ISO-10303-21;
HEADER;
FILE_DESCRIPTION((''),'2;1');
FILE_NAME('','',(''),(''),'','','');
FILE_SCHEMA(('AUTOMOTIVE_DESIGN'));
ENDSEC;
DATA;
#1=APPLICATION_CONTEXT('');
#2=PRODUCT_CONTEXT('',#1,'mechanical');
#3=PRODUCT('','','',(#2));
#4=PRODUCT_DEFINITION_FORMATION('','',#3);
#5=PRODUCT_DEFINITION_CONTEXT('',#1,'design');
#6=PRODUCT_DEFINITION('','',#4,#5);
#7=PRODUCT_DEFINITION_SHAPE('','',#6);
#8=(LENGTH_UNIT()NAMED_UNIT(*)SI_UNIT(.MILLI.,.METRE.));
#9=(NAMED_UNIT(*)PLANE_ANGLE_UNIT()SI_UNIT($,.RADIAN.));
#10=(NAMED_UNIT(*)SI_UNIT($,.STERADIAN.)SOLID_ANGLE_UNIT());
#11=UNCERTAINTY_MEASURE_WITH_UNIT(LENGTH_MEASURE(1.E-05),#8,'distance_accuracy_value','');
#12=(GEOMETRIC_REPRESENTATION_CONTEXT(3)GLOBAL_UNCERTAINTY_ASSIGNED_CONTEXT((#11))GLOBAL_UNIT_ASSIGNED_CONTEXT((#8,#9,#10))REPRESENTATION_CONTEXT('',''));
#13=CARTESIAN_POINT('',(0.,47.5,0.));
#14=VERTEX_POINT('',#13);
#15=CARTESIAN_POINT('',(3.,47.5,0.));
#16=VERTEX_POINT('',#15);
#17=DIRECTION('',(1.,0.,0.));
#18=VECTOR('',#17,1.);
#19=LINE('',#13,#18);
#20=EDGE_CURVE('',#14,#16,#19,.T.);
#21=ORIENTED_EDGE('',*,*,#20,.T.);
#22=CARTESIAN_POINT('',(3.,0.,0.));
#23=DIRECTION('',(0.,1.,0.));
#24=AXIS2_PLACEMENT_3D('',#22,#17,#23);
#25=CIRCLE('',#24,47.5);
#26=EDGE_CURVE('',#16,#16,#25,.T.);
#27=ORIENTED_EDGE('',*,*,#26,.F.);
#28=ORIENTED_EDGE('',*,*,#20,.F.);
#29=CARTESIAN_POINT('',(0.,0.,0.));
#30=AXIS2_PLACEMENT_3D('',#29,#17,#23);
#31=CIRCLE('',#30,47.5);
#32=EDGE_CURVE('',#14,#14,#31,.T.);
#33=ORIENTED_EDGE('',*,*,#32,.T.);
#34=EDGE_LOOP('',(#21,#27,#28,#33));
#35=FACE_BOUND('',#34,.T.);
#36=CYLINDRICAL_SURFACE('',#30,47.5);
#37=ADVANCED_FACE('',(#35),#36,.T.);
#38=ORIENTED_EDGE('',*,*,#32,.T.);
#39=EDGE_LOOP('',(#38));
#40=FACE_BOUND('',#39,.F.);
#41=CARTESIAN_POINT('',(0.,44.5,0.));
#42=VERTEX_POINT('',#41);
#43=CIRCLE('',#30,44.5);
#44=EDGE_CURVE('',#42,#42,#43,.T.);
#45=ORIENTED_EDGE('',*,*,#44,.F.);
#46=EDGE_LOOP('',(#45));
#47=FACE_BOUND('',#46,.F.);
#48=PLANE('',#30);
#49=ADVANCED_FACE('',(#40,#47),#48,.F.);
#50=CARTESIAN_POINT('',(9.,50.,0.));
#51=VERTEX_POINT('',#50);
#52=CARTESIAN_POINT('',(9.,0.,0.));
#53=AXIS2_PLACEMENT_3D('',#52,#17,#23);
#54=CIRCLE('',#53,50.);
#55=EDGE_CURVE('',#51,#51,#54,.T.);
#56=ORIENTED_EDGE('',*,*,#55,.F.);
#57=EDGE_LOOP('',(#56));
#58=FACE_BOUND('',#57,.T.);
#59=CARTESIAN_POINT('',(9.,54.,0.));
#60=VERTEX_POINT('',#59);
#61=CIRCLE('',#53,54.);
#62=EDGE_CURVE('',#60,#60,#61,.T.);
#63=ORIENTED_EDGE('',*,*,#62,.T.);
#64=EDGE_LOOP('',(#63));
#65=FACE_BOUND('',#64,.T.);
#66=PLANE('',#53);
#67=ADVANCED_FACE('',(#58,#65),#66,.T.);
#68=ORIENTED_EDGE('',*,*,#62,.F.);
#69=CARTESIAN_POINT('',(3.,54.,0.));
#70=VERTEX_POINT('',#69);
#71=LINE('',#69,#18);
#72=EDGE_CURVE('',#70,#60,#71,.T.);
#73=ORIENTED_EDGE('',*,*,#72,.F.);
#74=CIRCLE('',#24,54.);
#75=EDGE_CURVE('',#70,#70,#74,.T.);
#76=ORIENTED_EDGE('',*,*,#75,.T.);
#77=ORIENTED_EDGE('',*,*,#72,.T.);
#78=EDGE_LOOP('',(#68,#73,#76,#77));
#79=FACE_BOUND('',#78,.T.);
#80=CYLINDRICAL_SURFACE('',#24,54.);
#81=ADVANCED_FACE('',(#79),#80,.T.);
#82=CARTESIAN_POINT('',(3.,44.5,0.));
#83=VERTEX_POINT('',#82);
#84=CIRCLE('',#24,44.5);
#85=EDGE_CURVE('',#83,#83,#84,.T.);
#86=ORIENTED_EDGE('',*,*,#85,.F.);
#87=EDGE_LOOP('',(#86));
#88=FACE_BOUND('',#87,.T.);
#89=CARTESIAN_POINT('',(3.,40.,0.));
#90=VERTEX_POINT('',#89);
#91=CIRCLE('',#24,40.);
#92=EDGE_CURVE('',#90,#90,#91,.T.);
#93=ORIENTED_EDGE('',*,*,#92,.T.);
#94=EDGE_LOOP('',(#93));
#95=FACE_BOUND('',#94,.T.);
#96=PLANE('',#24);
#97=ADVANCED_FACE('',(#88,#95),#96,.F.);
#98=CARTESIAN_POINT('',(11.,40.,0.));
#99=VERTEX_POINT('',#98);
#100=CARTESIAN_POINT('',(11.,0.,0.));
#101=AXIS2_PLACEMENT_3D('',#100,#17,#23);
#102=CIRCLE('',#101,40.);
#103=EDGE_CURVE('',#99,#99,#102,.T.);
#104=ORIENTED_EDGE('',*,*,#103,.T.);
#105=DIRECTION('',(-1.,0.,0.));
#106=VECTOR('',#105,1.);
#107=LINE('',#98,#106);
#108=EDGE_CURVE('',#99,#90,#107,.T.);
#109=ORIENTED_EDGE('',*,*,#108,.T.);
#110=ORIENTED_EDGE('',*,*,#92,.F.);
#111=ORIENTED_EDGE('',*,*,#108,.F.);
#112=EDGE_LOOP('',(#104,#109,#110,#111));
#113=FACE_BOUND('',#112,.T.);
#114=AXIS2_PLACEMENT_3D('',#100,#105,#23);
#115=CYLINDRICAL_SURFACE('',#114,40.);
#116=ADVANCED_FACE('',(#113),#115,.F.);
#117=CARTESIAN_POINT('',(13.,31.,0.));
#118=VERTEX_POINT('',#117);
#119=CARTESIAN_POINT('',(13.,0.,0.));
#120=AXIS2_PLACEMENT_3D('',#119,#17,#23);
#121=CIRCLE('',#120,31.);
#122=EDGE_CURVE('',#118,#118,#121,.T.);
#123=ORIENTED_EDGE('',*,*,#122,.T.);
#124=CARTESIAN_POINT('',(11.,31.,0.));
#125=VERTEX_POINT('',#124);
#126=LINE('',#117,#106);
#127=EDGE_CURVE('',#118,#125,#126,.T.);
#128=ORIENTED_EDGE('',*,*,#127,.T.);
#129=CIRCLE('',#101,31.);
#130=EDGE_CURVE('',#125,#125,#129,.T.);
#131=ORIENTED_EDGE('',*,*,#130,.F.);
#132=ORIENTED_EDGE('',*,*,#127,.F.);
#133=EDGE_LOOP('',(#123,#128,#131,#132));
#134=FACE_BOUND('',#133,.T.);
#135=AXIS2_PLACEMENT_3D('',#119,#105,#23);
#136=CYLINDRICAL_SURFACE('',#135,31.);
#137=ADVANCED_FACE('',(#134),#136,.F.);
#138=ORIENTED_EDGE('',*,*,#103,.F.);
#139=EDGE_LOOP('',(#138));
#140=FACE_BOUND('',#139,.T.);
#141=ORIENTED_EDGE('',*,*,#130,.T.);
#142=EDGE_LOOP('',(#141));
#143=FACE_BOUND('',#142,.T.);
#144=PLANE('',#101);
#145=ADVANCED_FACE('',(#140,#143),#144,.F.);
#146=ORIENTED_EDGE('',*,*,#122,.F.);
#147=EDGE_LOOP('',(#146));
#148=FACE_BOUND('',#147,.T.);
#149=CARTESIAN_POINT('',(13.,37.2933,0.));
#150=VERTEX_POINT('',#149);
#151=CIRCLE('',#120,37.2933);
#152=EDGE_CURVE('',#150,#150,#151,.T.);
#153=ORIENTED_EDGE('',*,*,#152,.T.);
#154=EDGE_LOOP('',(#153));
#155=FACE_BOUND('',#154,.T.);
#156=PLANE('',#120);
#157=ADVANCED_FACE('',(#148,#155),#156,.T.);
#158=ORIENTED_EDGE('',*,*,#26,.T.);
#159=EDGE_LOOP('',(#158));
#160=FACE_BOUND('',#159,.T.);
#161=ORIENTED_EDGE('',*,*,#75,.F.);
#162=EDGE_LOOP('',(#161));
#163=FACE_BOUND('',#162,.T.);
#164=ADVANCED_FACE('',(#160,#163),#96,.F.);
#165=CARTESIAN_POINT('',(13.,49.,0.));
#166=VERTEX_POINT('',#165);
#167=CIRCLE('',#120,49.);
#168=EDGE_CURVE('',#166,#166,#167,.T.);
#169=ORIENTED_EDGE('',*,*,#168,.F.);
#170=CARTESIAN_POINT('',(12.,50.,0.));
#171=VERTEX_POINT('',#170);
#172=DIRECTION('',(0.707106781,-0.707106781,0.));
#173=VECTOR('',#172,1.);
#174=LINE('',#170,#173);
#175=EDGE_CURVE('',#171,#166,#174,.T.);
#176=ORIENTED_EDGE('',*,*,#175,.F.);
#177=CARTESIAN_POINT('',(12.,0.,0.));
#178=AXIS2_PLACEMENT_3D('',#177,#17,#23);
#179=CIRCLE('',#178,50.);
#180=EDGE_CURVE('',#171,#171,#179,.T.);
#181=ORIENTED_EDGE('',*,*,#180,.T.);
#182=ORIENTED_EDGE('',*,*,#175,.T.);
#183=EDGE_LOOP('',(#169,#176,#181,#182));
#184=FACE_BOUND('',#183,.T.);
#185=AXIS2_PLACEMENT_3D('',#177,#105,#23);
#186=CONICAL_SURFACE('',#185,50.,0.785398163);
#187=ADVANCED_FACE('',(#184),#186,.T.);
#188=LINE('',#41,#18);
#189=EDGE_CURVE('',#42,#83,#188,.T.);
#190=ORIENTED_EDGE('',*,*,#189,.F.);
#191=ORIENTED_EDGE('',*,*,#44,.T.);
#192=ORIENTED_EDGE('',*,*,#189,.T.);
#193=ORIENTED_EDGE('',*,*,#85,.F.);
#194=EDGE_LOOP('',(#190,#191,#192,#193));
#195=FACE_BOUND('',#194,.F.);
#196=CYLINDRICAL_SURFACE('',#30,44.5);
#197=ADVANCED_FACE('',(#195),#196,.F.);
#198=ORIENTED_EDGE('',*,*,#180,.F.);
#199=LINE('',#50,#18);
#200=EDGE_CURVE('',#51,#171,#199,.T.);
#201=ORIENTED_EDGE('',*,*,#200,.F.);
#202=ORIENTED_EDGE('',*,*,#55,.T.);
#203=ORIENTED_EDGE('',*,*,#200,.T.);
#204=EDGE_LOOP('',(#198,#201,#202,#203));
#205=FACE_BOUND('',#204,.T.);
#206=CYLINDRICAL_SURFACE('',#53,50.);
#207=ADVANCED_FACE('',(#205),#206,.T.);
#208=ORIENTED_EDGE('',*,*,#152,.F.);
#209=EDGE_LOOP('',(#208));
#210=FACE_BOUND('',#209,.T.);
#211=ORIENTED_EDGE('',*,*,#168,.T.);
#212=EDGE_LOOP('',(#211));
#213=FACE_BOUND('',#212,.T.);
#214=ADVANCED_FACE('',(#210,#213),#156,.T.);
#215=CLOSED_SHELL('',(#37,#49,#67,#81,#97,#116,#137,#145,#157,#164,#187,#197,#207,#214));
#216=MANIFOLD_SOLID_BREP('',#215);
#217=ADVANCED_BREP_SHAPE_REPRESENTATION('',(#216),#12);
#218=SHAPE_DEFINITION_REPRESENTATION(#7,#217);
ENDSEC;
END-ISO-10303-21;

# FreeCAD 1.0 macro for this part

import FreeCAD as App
import Part
import Sketcher

V = App.Vector


def edges_at(feature, points):
    """Names of the edges that pass closest to the given points."""
    edges = feature.Shape.Edges
    near = lambda p: min(range(len(edges)), key=lambda i: edges[i].distToShape(Part.Vertex(*p))[0])
    return sorted({f"Edge{near(p) + 1}" for p in points})

doc = App.newDocument("Part")
body = doc.addObject("PartDesign::Body", "Body")

sketch1 = body.newObject("Sketcher::SketchObject", "Sketch")
sketch1.AttachmentSupport = (doc.getObject("XY_Plane"), [""])
sketch1.MapMode = "FlatFace"
sketch1.addGeometry([
    Part.LineSegment(V(3, 47.5, 0), V(0, 47.5, 0)),
    Part.LineSegment(V(0, 47.5, 0), V(0, 44.5, 0)),
    Part.LineSegment(V(0, 44.5, 0), V(3, 44.5, 0)),
    Part.LineSegment(V(3, 44.5, 0), V(3, 40, 0)),
    Part.LineSegment(V(3, 40, 0), V(11, 40, 0)),
    Part.LineSegment(V(11, 40, 0), V(11, 31, 0)),
    Part.LineSegment(V(11, 31, 0), V(13, 31, 0)),
    Part.LineSegment(V(13, 31, 0), V(13, 50, 0)),
    Part.LineSegment(V(13, 50, 0), V(9, 50, 0)),
    Part.LineSegment(V(9, 50, 0), V(9, 54, 0)),
    Part.LineSegment(V(9, 54, 0), V(3, 54, 0)),
    Part.LineSegment(V(3, 54, 0), V(3, 47.5, 0)),
], False)
sketch1.addConstraint([
    Sketcher.Constraint("Coincident", 0, 2, 1, 1),
    Sketcher.Constraint("Coincident", 1, 2, 2, 1),
    Sketcher.Constraint("Coincident", 2, 2, 3, 1),
    Sketcher.Constraint("Coincident", 3, 2, 4, 1),
    Sketcher.Constraint("Coincident", 4, 2, 5, 1),
    Sketcher.Constraint("Coincident", 5, 2, 6, 1),
    Sketcher.Constraint("Coincident", 6, 2, 7, 1),
    Sketcher.Constraint("Coincident", 7, 2, 8, 1),
    Sketcher.Constraint("Coincident", 8, 2, 9, 1),
    Sketcher.Constraint("Coincident", 9, 2, 10, 1),
    Sketcher.Constraint("Coincident", 10, 2, 11, 1),
    Sketcher.Constraint("Coincident", 11, 2, 0, 1),
    Sketcher.Constraint("Horizontal", 0),
    Sketcher.Constraint("Vertical", 1),
    Sketcher.Constraint("Horizontal", 2),
    Sketcher.Constraint("Vertical", 3),
    Sketcher.Constraint("Horizontal", 4),
    Sketcher.Constraint("Vertical", 5),
    Sketcher.Constraint("Horizontal", 6),
    Sketcher.Constraint("Vertical", 7),
    Sketcher.Constraint("Horizontal", 8),
    Sketcher.Constraint("Vertical", 9),
    Sketcher.Constraint("Horizontal", 10),
    Sketcher.Constraint("Vertical", 11),
    Sketcher.Constraint("PointOnObject", 0, 2, -2),
    Sketcher.Constraint("Vertical", 3, 2, 10, 2),
    Sketcher.Constraint("Equal", 2, 1),
    Sketcher.Constraint("Equal", 8, 9),
    Sketcher.Constraint("DistanceX", 0, 2, 0, 1, 3.0),
    Sketcher.Constraint("DistanceX", 4, 1, 4, 2, 8.0),
    Sketcher.Constraint("DistanceX", 10, 2, 10, 1, 6.0),
    Sketcher.Constraint("DistanceX", -1, 1, 6, 2, 13.0),
    Sketcher.Constraint("DistanceY", 5, 2, 5, 1, 9.0),
    Sketcher.Constraint("DistanceY", 7, 1, 7, 2, 19.0),
    Sketcher.Constraint("DistanceY", 3, 2, 3, 1, 4.5),
    Sketcher.Constraint("DistanceY", -1, 1, 3, 2, 40.0),
])
revolution = body.newObject("PartDesign::Revolution", "Revolution")
revolution.Profile = sketch1
revolution.ReferenceAxis = (sketch1, ["H_Axis"])
revolution.Angle = 360
doc.recompute()

chamfer = body.newObject("PartDesign::Chamfer", "Chamfer")
chamfer.Base = (revolution, edges_at(revolution, [(13, -50, 0)]))
chamfer.Size = 1

doc.recompute()
